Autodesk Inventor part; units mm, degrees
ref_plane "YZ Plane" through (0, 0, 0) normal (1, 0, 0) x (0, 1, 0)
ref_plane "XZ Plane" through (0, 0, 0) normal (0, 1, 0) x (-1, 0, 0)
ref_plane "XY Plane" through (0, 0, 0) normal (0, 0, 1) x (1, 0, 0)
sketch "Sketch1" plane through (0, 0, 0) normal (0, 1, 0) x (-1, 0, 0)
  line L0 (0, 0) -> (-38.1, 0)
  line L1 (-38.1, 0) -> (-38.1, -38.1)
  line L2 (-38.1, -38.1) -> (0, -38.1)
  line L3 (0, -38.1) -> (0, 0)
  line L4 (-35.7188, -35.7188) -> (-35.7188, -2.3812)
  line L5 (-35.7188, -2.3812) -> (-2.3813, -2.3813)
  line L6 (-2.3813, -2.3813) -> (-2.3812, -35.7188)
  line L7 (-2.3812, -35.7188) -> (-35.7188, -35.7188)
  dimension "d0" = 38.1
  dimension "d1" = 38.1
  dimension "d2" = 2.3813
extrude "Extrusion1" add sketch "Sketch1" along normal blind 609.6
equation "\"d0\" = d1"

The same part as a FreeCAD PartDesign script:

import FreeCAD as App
import Part
import Sketcher
from FreeCAD import Vector
Q = App.Units.Quantity

doc = App.newDocument("Part")
body = doc.addObject("PartDesign::Body", "Body")

sketch1 = body.newObject("Sketcher::SketchObject", "Sketch")
sketch1.AttachmentSupport = (doc.getObject("XZ_Plane"), [""])
sketch1.MapMode = "FlatFace"
sketch1.addGeometry(Part.LineSegment(Vector(0, -38.1, 0), Vector(0, 0, 0)), False)
sketch1.addGeometry(Part.LineSegment(Vector(0, 0, 0), Vector(38.1, 0, 0)), False)
sketch1.addGeometry(Part.LineSegment(Vector(38.1, 0, 0), Vector(38.1, -38.1, 0)), False)
sketch1.addGeometry(Part.LineSegment(Vector(38.1, -38.1, 0), Vector(0, -38.1, 0)), False)
sketch1.addGeometry(Part.LineSegment(Vector(2.3812, -35.7188, 0), Vector(35.7188, -35.7188, 0)), False)
sketch1.addGeometry(Part.LineSegment(Vector(35.7188, -35.7188, 0), Vector(35.7188, -2.3812, 0)), False)
sketch1.addGeometry(Part.LineSegment(Vector(35.7188, -2.3812, 0), Vector(2.3813, -2.3813, 0)), False)
sketch1.addGeometry(Part.LineSegment(Vector(2.3813, -2.3813, 0), Vector(2.3812, -35.7188, 0)), False)
sketch1.addConstraint(Sketcher.Constraint("Coincident", 0, 2, 1, 1))
sketch1.addConstraint(Sketcher.Constraint("Coincident", 1, 2, 2, 1))
sketch1.addConstraint(Sketcher.Constraint("Coincident", 2, 2, 3, 1))
sketch1.addConstraint(Sketcher.Constraint("Coincident", 3, 2, 0, 1))
sketch1.addConstraint(Sketcher.Constraint("Coincident", 4, 2, 5, 1))
sketch1.addConstraint(Sketcher.Constraint("Coincident", 5, 2, 6, 1))
sketch1.addConstraint(Sketcher.Constraint("Coincident", 6, 2, 7, 1))
sketch1.addConstraint(Sketcher.Constraint("Coincident", 7, 2, 4, 1))
sketch1.addConstraint(Sketcher.Constraint("Vertical", 0))
sketch1.addConstraint(Sketcher.Constraint("Horizontal", 1))
sketch1.addConstraint(Sketcher.Constraint("Vertical", 2))
sketch1.addConstraint(Sketcher.Constraint("Horizontal", 3))
sketch1.addConstraint(Sketcher.Constraint("Horizontal", 4))
sketch1.addConstraint(Sketcher.Constraint("Vertical", 5))
sketch1.addConstraint(Sketcher.Constraint("Horizontal", 6))
sketch1.addConstraint(Sketcher.Constraint("Vertical", 7))
sketch1.addConstraint(Sketcher.Constraint("Coincident", 0, 2, -1, 1))
sketch1.addConstraint(Sketcher.Constraint("Equal", 3, 0))
sketch1.addConstraint(Sketcher.Constraint("Equal", 6, 5))
sketch1.addConstraint(Sketcher.Constraint("DistanceX", 1, 1, 1, 2, Q("1.5 in")))
sketch1.addConstraint(Sketcher.Constraint("DistanceY", 5, 2, -1, 1, Q("0.093748 in")))
sketch1.addConstraint(Sketcher.Constraint("DistanceX", -1, 1, 6, 2, Q("0.093752 in")))
sketch1.addConstraint(Sketcher.Constraint("DistanceX", 4, 2, 2, 2, Q("0.093748 in")))
pad1 = body.newObject("PartDesign::Pad", "Pad")
pad1.Profile = sketch1
pad1.Length = Q("24 in")
pad1.Reversed = True

doc.recompute()
